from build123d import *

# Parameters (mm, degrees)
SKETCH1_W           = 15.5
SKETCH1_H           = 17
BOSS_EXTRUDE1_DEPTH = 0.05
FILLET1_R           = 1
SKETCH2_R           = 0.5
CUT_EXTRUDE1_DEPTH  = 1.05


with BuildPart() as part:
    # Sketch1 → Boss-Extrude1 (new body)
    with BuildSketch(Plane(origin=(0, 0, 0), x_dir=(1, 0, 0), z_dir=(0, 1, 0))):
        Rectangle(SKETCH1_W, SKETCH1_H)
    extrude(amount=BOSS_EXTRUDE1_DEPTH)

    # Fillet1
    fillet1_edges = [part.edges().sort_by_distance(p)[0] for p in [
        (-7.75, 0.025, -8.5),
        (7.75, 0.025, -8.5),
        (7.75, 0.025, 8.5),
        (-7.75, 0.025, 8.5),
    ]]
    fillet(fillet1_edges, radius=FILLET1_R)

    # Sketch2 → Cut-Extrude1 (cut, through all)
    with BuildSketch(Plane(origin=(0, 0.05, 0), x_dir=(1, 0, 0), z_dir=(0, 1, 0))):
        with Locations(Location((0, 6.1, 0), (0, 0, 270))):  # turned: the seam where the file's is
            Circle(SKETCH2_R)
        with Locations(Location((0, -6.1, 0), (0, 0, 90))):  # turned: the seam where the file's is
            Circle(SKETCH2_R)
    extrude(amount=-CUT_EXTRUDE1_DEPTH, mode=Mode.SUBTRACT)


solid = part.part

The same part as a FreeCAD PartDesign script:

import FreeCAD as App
import Part
import Sketcher
Q = App.Units.Quantity


def edges_at(feature, points):
    """Names of the edges that pass closest to the given points."""
    edges = feature.Shape.Edges
    near = lambda p: min(range(len(edges)), key=lambda i: edges[i].distToShape(Part.Vertex(*p))[0])
    return sorted({f"Edge{near(p) + 1}" for p in points})

doc = App.newDocument("Part")
body = doc.addObject("PartDesign::Body", "Body")

# Sketch on XZ plane
sketch1 = body.newObject("Sketcher::SketchObject", "Sketch")
sketch1.AttachmentSupport = (doc.getObject("XZ_Plane"), [""])
sketch1.MapMode = "FlatFace"
sketch1.addGeometry([
    Part.LineSegment(App.Vector(-7.75, -8.5, 0), App.Vector(-7.75, 8.5, 0)),
    Part.LineSegment(App.Vector(-7.75, 8.5, 0), App.Vector(7.75, 8.5, 0)),
    Part.LineSegment(App.Vector(7.75, 8.5, 0), App.Vector(7.75, -8.5, 0)),
    Part.LineSegment(App.Vector(7.75, -8.5, 0), App.Vector(-7.75, -8.5, 0)),
], False)
sketch1.addConstraint([
    Sketcher.Constraint("Coincident", 0, 2, 1, 1),
    Sketcher.Constraint("Coincident", 1, 2, 2, 1),
    Sketcher.Constraint("Coincident", 2, 2, 3, 1),
    Sketcher.Constraint("Coincident", 3, 2, 0, 1),
    Sketcher.Constraint("Vertical", 0),
    Sketcher.Constraint("Horizontal", 1),
    Sketcher.Constraint("Vertical", 2),
    Sketcher.Constraint("Horizontal", 3),
    Sketcher.Constraint("Symmetric", 0, 2, 2, 2, -1, 1),
    Sketcher.Constraint("DistanceY", 0, 1, 0, 2, Q("17 mm")),
    Sketcher.Constraint("DistanceX", 1, 1, 1, 2, Q("15.5 mm")),
])
pad1 = body.newObject("PartDesign::Pad", "Pad")
pad1.Profile = sketch1
pad1.Length = 0.05
pad1.Reversed = True
doc.recompute()

fillet = body.newObject("PartDesign::Fillet", "Fillet")
fillet.Base = (pad1, edges_at(pad1, [
    (-7.75, 0.025, -8.5),
    (7.75, 0.025, -8.5),
    (7.75, 0.025, 8.5),
    (-7.75, 0.025, 8.5),
]))
fillet.Radius = 1

# Sketch on XZ plane
sketch2 = body.newObject("Sketcher::SketchObject", "Sketch001")
sketch2.AttachmentSupport = (doc.getObject("XZ_Plane"), [""])
sketch2.MapMode = "FlatFace"
sketch2.AttachmentOffset = App.Placement(App.Vector(0, 0, -0.05), App.Rotation())
sketch2.addGeometry([
    Part.Circle(App.Vector(0, -6.1, 0), App.Vector(0, 0, 1), 0.5),
    Part.Circle(App.Vector(0, 6.1, 0), App.Vector(0, 0, 1), 0.5),
], False)
sketch2.addConstraint([
    Sketcher.Constraint("Equal", 0, 1),
    Sketcher.Constraint("Symmetric", 0, 3, 1, 3, -1, 1),
    Sketcher.Constraint("PointOnObject", 0, 3, -2),
    Sketcher.Constraint("Diameter", 0, Q("1 mm")),
    Sketcher.Constraint("DistanceY", 0, 3, -1, 1, Q("6.1 mm")),
])
pocket1 = body.newObject("PartDesign::Pocket", "Pocket")
pocket1.Profile = sketch2
pocket1.Type = "ThroughAll"
pocket1.Reversed = True

doc.recompute()
